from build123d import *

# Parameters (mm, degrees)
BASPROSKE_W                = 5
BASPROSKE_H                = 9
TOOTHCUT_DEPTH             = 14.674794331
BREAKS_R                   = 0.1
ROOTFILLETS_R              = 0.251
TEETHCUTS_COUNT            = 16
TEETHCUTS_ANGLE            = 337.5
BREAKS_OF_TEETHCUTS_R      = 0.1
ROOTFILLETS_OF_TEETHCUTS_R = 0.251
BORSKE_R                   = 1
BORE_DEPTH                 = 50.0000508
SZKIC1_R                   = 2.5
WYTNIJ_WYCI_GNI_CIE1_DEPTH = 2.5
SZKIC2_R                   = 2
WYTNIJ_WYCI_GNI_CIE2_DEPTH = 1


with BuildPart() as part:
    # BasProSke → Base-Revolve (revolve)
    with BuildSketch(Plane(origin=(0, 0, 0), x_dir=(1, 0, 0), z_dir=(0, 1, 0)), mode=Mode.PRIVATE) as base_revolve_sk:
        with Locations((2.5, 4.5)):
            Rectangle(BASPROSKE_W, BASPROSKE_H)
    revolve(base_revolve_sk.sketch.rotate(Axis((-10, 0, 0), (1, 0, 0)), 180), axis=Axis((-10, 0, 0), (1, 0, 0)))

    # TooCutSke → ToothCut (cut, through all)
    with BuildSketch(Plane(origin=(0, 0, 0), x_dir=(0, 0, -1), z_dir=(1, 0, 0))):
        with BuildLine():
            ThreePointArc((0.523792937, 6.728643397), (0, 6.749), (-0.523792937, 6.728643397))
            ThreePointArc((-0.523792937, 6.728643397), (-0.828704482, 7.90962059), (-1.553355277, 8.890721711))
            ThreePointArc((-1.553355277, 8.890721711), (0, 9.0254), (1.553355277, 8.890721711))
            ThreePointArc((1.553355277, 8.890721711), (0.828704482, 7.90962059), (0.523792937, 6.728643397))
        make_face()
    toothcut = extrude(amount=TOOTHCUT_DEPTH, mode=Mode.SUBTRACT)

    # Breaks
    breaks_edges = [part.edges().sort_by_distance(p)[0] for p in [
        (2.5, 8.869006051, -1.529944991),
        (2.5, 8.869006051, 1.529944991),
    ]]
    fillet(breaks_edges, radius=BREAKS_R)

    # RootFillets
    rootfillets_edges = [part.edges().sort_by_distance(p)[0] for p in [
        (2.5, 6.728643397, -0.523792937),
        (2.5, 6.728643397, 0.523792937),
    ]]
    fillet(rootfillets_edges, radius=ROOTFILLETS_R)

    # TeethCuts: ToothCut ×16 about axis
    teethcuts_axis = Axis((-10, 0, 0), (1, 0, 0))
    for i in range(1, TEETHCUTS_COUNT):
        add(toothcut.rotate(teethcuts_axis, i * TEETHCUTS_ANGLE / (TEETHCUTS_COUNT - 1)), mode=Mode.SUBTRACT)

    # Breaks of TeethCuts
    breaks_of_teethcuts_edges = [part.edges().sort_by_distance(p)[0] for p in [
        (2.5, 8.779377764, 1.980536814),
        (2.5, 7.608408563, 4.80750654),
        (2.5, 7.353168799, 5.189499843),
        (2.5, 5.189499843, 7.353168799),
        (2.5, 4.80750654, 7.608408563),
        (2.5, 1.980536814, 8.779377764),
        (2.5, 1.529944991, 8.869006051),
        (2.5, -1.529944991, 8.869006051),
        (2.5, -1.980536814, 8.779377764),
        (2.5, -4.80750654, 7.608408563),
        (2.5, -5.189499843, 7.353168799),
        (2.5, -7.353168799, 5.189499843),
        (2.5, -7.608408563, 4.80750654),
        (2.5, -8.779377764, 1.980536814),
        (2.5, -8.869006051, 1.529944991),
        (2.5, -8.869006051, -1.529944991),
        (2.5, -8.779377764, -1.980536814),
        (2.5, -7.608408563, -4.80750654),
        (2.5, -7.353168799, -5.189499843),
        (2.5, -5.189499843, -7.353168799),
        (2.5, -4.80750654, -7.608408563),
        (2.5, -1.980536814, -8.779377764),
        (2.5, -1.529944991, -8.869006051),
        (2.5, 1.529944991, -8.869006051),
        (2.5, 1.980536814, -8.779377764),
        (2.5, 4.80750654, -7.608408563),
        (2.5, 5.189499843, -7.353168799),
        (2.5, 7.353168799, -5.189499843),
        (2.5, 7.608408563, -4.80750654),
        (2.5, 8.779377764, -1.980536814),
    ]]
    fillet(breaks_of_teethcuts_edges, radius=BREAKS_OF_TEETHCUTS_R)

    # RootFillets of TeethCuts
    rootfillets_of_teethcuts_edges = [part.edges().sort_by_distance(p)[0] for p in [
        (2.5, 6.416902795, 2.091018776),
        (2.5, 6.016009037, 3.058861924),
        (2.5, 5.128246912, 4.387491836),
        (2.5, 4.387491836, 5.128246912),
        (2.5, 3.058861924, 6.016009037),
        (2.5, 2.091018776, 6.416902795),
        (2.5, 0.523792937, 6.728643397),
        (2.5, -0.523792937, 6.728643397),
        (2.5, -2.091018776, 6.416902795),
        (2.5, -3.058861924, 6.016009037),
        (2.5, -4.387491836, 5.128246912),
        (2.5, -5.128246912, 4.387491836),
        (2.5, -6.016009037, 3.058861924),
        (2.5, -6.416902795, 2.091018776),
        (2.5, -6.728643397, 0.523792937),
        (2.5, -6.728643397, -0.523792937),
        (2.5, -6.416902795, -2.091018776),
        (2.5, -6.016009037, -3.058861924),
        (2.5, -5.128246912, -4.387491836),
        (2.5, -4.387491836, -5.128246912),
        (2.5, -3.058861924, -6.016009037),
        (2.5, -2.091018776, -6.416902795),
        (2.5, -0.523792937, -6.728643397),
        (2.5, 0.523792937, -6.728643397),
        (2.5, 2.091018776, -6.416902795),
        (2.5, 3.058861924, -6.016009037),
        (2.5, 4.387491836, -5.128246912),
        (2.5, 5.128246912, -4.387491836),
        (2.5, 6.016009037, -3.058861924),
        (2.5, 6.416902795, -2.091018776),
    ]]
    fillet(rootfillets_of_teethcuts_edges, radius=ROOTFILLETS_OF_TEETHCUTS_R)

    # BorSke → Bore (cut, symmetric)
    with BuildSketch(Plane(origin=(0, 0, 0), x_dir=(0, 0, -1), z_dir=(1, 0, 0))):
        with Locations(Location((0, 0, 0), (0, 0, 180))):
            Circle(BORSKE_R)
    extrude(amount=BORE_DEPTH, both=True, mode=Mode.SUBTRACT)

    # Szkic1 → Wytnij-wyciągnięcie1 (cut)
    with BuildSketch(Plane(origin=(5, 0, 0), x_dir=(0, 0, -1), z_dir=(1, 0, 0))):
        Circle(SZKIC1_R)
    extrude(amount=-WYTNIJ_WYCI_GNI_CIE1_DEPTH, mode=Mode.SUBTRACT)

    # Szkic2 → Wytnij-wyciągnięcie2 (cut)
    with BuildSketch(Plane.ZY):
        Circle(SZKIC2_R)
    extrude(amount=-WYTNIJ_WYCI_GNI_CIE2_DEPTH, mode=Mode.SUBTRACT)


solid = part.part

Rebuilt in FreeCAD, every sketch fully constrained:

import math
import FreeCAD as App
import Part
import Sketcher


def edges_at(feature, points):
    """Names of the edges that pass closest to the given points."""
    edges = feature.Shape.Edges
    near = lambda p: min(range(len(edges)), key=lambda i: edges[i].distToShape(Part.Vertex(*p))[0])
    return sorted({f"Edge{near(p) + 1}" for p in points})

doc = App.newDocument("Part")
body = doc.addObject("PartDesign::Body", "Body")

# Sketch on XZ plane
sketch1 = doc.addObject("Sketcher::SketchObject", "Sketch")
body.addObject(sketch1)
sketch1.AttachmentSupport = (doc.XZ_Plane, [""])
sketch1.MapMode = "FlatFace"
sketch1.addGeometry([
    Part.LineSegment(App.Vector(0, -9, 0), App.Vector(0, 0, 0)),
    Part.LineSegment(App.Vector(0, 0, 0), App.Vector(5, 0, 0)),
    Part.LineSegment(App.Vector(5, 0, 0), App.Vector(5, -9, 0)),
    Part.LineSegment(App.Vector(5, -9, 0), App.Vector(0, -9, 0)),
], False)
sketch1.addConstraint([
    Sketcher.Constraint("Coincident", 0, 2, 1, 1),
    Sketcher.Constraint("Coincident", 1, 2, 2, 1),
    Sketcher.Constraint("Coincident", 2, 2, 3, 1),
    Sketcher.Constraint("Coincident", 3, 2, 0, 1),
    Sketcher.Constraint("Vertical", 0),
    Sketcher.Constraint("Horizontal", 1),
    Sketcher.Constraint("Vertical", 2),
    Sketcher.Constraint("Horizontal", 3),
    Sketcher.Constraint("Coincident", 0, 2, -1, 1),
    Sketcher.Constraint("DistanceX", 1, 1, 1, 2, 5.0),
    Sketcher.Constraint("DistanceY", 0, 1, 0, 2, 9.0),
])
revolution = doc.addObject("PartDesign::Revolution", "Revolution")
body.addObject(revolution)
revolution.Profile = sketch1
revolution.ReferenceAxis = (sketch1, ["H_Axis"])
revolution.Angle = 360

# Sketch on YZ plane
sketch2 = doc.addObject("Sketcher::SketchObject", "Sketch001")
body.addObject(sketch2)
sketch2.AttachmentSupport = (doc.YZ_Plane, [""])
sketch2.MapMode = "FlatFace"
sketch2.addGeometry([
    Part.ArcOfCircle(Part.Circle(App.Vector(0, 0, 0), App.Vector(0, 0, 1), 6.749), math.radians(-4.451227), math.radians(4.451227)),
    Part.ArcOfCircle(Part.Circle(App.Vector(6.533832, -3.717857, 0), App.Vector(0, 0, 1), 3.2), math.radians(42.563503), math.radians(86.509753)),
    Part.ArcOfCircle(Part.Circle(App.Vector(0, 0, 0), App.Vector(0, 0, 1), 9.0254), math.radians(-9.910481), math.radians(9.910481)),
    Part.ArcOfCircle(Part.Circle(App.Vector(6.533832, 3.717857, 0), App.Vector(0, 0, 1), 3.2), math.radians(-86.509753), math.radians(-42.563503)),
], False)
sketch2.addConstraint([
    Sketcher.Constraint("Coincident", 0, 1, 1, 2),
    Sketcher.Constraint("Coincident", 1, 1, 2, 1),
    Sketcher.Constraint("Coincident", 2, 2, 3, 2),
    Sketcher.Constraint("Coincident", 3, 1, 0, 2),
    Sketcher.Constraint("Coincident", 0, 3, -1, 1),
    Sketcher.Constraint("Coincident", 2, 3, -1, 1),
    Sketcher.Constraint("Equal", 1, 3),
    Sketcher.Constraint("Symmetric", 1, 3, 3, 3, -1),
    Sketcher.Constraint("Radius", 1, 3.2),
    Sketcher.Constraint("Radius", 0, 6.749),
    Sketcher.Constraint("Radius", 2, 9.0254),
    Sketcher.Constraint("DistanceX", -1, 1, 1, 3, 6.533832),
    Sketcher.Constraint("DistanceX", -1, 1, 1, 1, 8.890722),
])
pocket1 = doc.addObject("PartDesign::Pocket", "Pocket")
body.addObject(pocket1)
pocket1.Profile = sketch2
pocket1.Type = "ThroughAll"
pocket1.Reversed = True
doc.recompute()

fillet = doc.addObject("PartDesign::Fillet", "Fillet")
body.addObject(fillet)
fillet.Base = (pocket1, edges_at(pocket1, [(2.5, 8.869, -1.53), (2.5, 8.869, 1.53)]))
fillet.Radius = 0.1
doc.recompute()

fillet2 = doc.addObject("PartDesign::Fillet", "Fillet001")
body.addObject(fillet2)
fillet2.Base = (fillet, edges_at(fillet, [(2.5, 6.729, -0.524), (2.5, 6.729, 0.524)]))
fillet2.Radius = 0.251
doc.recompute()

polarpattern = doc.addObject("PartDesign::PolarPattern", "PolarPattern")
body.addObject(polarpattern)
polarpattern.Originals = [pocket1]
polarpattern.Axis = (doc.X_Axis, [""])
polarpattern.Angle = 360
polarpattern.Occurrences = 16
body.Tip = polarpattern
doc.recompute()

fillet3 = doc.addObject("PartDesign::Fillet", "Fillet002")
body.addObject(fillet3)
fillet3.Base = (polarpattern, edges_at(polarpattern, [
    (2.5, 8.779, 1.981),
    (2.5, 7.608, 4.808),
    (2.5, 7.353, 5.189),
    (2.5, 5.189, 7.353),
    (2.5, 4.808, 7.608),
    (2.5, 1.981, 8.779),
    (2.5, 1.53, 8.869),
    (2.5, -1.53, 8.869),
    (2.5, -1.981, 8.779),
    (2.5, -4.808, 7.608),
    (2.5, -5.189, 7.353),
    (2.5, -7.353, 5.189),
    (2.5, -7.608, 4.808),
    (2.5, -8.779, 1.981),
    (2.5, -8.869, 1.53),
    (2.5, -8.869, -1.53),
    (2.5, -8.779, -1.981),
    (2.5, -7.608, -4.808),
    (2.5, -7.353, -5.189),
    (2.5, -5.189, -7.353),
    (2.5, -4.808, -7.608),
    (2.5, -1.981, -8.779),
    (2.5, -1.53, -8.869),
    (2.5, 1.53, -8.869),
    (2.5, 1.981, -8.779),
    (2.5, 4.808, -7.608),
    (2.5, 5.189, -7.353),
    (2.5, 7.353, -5.189),
    (2.5, 7.608, -4.808),
    (2.5, 8.779, -1.981),
]))
fillet3.Radius = 0.1
doc.recompute()

fillet4 = doc.addObject("PartDesign::Fillet", "Fillet003")
body.addObject(fillet4)
fillet4.Base = (fillet3, edges_at(fillet3, [
    (2.5, 6.417, 2.091),
    (2.5, 6.016, 3.059),
    (2.5, 5.128, 4.387),
    (2.5, 4.387, 5.128),
    (2.5, 3.059, 6.016),
    (2.5, 2.091, 6.417),
    (2.5, 0.524, 6.729),
    (2.5, -0.524, 6.729),
    (2.5, -2.091, 6.417),
    (2.5, -3.059, 6.016),
    (2.5, -4.387, 5.128),
    (2.5, -5.128, 4.387),
    (2.5, -6.016, 3.059),
    (2.5, -6.417, 2.091),
    (2.5, -6.729, 0.524),
    (2.5, -6.729, -0.524),
    (2.5, -6.417, -2.091),
    (2.5, -6.016, -3.059),
    (2.5, -5.128, -4.387),
    (2.5, -4.387, -5.128),
    (2.5, -3.059, -6.016),
    (2.5, -2.091, -6.417),
    (2.5, -0.524, -6.729),
    (2.5, 0.524, -6.729),
    (2.5, 2.091, -6.417),
    (2.5, 3.059, -6.016),
    (2.5, 4.387, -5.128),
    (2.5, 5.128, -4.387),
    (2.5, 6.016, -3.059),
    (2.5, 6.417, -2.091),
]))
fillet4.Radius = 0.251

# Sketch on YZ plane
sketch3 = doc.addObject("Sketcher::SketchObject", "Sketch002")
body.addObject(sketch3)
sketch3.AttachmentSupport = (doc.YZ_Plane, [""])
sketch3.MapMode = "FlatFace"
sketch3.addGeometry(Part.Circle(App.Vector(0, 0, 0), App.Vector(0, 0, 1), 1), False)
sketch3.addConstraint([
    Sketcher.Constraint("Coincident", 0, 3, -1, 1),
    Sketcher.Constraint("Diameter", 0, 2.0),
])
pocket2 = doc.addObject("PartDesign::Pocket", "Pocket001")
body.addObject(pocket2)
pocket2.Profile = sketch3
pocket2.Length = 100.000102
pocket2.Midplane = True

# Sketch on YZ plane
sketch4 = doc.addObject("Sketcher::SketchObject", "Sketch003")
body.addObject(sketch4)
sketch4.AttachmentSupport = (doc.YZ_Plane, [""])
sketch4.MapMode = "FlatFace"
sketch4.AttachmentOffset = App.Placement(App.Vector(0, 0, 5), App.Rotation())
sketch4.addGeometry(Part.Circle(App.Vector(0, 0, 0), App.Vector(0, 0, 1), 2.5), False)
sketch4.addConstraint([
    Sketcher.Constraint("Coincident", 0, 3, -1, 1),
    Sketcher.Constraint("Diameter", 0, 5.0),
])
pocket3 = doc.addObject("PartDesign::Pocket", "Pocket002")
body.addObject(pocket3)
pocket3.Profile = sketch4
pocket3.Length = 2.5

# Sketch on YZ plane
sketch5 = doc.addObject("Sketcher::SketchObject", "Sketch004")
body.addObject(sketch5)
sketch5.AttachmentSupport = (doc.YZ_Plane, [""])
sketch5.MapMode = "FlatFace"
sketch5.addGeometry(Part.Circle(App.Vector(0, 0, 0), App.Vector(0, 0, 1), 2), False)
sketch5.addConstraint([
    Sketcher.Constraint("Coincident", 0, 3, -1, 1),
    Sketcher.Constraint("Diameter", 0, 4.0),
])
pocket4 = doc.addObject("PartDesign::Pocket", "Pocket003")
body.addObject(pocket4)
pocket4.Profile = sketch5
pocket4.Length = 1
pocket4.Reversed = True

doc.recompute()
